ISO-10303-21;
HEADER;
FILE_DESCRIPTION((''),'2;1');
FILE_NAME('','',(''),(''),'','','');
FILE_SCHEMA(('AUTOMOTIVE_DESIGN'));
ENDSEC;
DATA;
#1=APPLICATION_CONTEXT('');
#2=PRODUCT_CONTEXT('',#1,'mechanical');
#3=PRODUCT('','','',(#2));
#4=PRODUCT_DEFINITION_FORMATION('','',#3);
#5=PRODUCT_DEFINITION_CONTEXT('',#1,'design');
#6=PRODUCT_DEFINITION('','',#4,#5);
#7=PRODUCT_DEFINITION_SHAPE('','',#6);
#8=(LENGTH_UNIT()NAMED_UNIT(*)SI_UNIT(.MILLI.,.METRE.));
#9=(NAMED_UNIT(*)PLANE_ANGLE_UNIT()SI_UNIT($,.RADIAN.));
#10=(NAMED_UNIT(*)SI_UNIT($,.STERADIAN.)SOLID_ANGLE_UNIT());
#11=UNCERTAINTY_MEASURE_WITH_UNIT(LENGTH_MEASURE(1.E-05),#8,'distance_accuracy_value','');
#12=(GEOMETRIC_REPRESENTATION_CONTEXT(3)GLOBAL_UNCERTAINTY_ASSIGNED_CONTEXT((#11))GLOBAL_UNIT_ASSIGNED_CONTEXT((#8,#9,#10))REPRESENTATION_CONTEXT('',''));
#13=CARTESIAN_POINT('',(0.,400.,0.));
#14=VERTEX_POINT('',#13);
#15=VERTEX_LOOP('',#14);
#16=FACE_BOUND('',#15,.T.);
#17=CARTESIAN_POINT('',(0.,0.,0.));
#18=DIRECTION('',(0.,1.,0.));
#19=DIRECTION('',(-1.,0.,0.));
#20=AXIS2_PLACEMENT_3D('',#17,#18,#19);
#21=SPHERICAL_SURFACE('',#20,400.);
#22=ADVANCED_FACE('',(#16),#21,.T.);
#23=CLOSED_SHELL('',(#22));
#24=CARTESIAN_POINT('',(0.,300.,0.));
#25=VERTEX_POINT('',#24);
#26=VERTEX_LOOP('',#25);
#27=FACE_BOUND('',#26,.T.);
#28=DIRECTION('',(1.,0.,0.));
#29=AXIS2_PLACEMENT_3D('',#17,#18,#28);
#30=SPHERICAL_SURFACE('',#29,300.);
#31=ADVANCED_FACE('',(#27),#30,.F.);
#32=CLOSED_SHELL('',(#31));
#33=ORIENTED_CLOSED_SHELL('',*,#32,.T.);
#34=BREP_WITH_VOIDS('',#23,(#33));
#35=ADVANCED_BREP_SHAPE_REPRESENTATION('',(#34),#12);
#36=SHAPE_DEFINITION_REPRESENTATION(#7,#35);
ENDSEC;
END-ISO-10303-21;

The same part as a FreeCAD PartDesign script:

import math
import FreeCAD as App
import Part
import Sketcher
from FreeCAD import Vector
Q = App.Units.Quantity

doc = App.newDocument("Part")
params = doc.addObject("Spreadsheet::Sheet", "Params")
for row, (alias, value) in enumerate([
    ("sketch1_radius", "300 mm"),
    ("sketch1_radius2", "400 mm"),
    ("revolution_angle", "360 deg"),
], start=1):
    params.set(f"A{row}", alias)
    params.set(f"B{row}", "=" + value)
    params.setAlias(f"B{row}", alias)

body = doc.addObject("PartDesign::Body", "Body")

# Sketch on XY plane
sketch1 = doc.addObject("Sketcher::SketchObject", "Sketch")
body.addObject(sketch1)
sketch1.AttachmentSupport = (doc.XY_Plane, [""])
sketch1.MapMode = "FlatFace"
sketch1.addGeometry(Part.LineSegment(Vector(0, 400, 0), Vector(0, 300, 0)), False)
sketch1.addGeometry(Part.ArcOfCircle(Part.Circle(Vector(0, 0, 0), Vector(0, 0, 1), 300), math.radians(-90), math.radians(90)), False)
sketch1.addGeometry(Part.LineSegment(Vector(0, -300, 0), Vector(0, -400, 0)), False)
sketch1.addGeometry(Part.ArcOfCircle(Part.Circle(Vector(0, 0, 0), Vector(0, 0, 1), 400), math.radians(-90), math.radians(90)), False)
sketch1.addConstraint(Sketcher.Constraint("Coincident", 0, 2, 1, 2))
sketch1.addConstraint(Sketcher.Constraint("Coincident", 1, 1, 2, 1))
sketch1.addConstraint(Sketcher.Constraint("Coincident", 2, 2, 3, 1))
sketch1.addConstraint(Sketcher.Constraint("Coincident", 3, 2, 0, 1))
sketch1.addConstraint(Sketcher.Constraint("Vertical", 0))
sketch1.addConstraint(Sketcher.Constraint("Vertical", 2))
sketch1.addConstraint(Sketcher.Constraint("Coincident", 1, 3, -1, 1))
sketch1.addConstraint(Sketcher.Constraint("Coincident", 3, 3, -1, 1))
sketch1.addConstraint(Sketcher.Constraint("PointOnObject", 0, 2, -2))
sketch1.addConstraint(Sketcher.Constraint("PointOnObject", 1, 1, -2))
sketch1.addConstraint(Sketcher.Constraint("Radius", 1, Q("300 mm")))
sketch1.addConstraint(Sketcher.Constraint("Radius", 3, Q("400 mm")))
sketch1.setExpression("Constraints[10]", "Params.sketch1_radius")
sketch1.setExpression("Constraints[11]", "Params.sketch1_radius2")
revolution = doc.addObject("PartDesign::Revolution", "Revolution")
body.addObject(revolution)
revolution.Profile = sketch1
revolution.ReferenceAxis = (sketch1, ["V_Axis"])
revolution.setExpression("Angle", "Params.revolution_angle")

doc.recompute()
